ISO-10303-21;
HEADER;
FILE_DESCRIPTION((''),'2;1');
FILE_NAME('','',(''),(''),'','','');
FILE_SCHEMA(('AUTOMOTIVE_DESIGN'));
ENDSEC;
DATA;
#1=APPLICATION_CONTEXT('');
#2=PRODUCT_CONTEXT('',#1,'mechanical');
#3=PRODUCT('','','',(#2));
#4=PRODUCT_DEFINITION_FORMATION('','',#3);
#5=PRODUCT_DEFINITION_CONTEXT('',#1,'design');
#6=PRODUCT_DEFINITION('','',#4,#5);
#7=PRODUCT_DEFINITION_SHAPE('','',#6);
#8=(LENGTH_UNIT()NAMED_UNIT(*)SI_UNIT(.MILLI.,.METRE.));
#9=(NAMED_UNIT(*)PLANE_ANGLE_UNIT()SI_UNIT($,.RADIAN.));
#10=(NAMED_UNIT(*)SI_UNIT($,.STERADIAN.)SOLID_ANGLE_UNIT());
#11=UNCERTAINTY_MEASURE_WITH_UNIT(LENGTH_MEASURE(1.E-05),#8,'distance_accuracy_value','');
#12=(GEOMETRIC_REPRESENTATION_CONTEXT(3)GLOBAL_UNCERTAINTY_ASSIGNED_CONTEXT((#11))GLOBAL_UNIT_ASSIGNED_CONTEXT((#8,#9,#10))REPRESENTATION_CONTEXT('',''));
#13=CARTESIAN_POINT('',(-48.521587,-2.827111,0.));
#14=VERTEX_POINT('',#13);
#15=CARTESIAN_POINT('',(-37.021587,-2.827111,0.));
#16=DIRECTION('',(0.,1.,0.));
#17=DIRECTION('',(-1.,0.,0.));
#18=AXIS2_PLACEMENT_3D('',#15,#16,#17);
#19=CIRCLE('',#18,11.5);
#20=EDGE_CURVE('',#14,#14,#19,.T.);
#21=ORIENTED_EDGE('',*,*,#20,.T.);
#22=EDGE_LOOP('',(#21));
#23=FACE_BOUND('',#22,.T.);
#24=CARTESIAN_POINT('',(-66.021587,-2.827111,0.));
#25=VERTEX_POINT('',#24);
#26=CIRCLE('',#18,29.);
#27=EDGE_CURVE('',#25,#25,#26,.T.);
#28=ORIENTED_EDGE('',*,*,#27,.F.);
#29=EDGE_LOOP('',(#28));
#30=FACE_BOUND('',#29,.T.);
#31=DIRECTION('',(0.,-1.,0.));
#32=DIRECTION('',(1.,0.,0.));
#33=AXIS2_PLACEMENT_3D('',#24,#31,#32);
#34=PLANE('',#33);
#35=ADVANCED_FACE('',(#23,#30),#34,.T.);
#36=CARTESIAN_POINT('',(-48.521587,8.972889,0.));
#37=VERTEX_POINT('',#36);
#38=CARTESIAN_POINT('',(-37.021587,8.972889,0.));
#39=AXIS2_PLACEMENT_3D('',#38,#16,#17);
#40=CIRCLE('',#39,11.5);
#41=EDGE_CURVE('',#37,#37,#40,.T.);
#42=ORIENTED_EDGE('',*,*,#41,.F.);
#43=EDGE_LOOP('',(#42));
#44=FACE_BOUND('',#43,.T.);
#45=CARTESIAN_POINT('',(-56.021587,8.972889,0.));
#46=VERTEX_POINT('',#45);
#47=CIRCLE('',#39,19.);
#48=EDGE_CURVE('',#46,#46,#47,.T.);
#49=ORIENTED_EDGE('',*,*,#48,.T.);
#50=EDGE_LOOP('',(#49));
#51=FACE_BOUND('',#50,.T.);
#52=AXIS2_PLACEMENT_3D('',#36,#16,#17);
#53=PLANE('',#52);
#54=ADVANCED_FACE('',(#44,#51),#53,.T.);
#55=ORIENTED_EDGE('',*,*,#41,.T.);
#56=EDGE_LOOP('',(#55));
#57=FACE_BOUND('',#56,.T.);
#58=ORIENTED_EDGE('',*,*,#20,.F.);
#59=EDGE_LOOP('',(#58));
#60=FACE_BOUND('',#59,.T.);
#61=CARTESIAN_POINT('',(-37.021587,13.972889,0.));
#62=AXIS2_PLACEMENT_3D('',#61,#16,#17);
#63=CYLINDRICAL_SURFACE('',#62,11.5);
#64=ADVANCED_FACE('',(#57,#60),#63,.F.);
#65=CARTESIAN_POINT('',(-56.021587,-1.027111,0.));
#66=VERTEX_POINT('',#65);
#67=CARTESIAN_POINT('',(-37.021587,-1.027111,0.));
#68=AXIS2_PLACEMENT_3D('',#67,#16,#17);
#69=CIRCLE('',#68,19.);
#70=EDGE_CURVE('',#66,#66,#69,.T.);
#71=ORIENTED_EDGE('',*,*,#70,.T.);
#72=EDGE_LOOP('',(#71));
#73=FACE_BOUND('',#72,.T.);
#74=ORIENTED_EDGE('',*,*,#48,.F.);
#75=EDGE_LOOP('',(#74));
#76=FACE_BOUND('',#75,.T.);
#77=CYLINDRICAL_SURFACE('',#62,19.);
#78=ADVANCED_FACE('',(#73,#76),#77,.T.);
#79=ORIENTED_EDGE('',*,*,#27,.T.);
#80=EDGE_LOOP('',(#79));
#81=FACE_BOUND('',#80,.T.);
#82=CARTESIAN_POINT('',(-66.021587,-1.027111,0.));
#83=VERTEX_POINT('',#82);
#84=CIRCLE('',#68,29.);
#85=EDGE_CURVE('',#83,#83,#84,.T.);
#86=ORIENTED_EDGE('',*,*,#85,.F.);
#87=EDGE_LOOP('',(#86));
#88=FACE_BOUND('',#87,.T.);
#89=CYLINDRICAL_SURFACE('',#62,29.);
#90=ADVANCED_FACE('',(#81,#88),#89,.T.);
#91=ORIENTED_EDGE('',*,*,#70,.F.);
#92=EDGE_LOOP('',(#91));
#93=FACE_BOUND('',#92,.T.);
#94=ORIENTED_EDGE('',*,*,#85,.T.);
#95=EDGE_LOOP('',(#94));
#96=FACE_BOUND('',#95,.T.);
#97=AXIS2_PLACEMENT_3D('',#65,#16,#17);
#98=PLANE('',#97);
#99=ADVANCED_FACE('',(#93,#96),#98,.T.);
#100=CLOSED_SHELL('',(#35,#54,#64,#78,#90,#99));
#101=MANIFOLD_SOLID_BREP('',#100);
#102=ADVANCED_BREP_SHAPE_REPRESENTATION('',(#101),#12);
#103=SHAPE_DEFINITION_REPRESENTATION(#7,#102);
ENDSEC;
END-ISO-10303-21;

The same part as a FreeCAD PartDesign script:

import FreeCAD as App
import Part
import Sketcher
Q = App.Units.Quantity

doc = App.newDocument("Part")
body = doc.addObject("PartDesign::Body", "Body")

# Sketch on XY plane
sketch1 = body.newObject("Sketcher::SketchObject", "Sketch")
sketch1.AttachmentSupport = (doc.getObject("XY_Plane"), [""])
sketch1.MapMode = "FlatFace"
sketch1.addGeometry([
    Part.LineSegment(App.Vector(-48.5, -2.8, 0), App.Vector(-48.5, 9, 0)),  # 0
    Part.LineSegment(App.Vector(-48.5, 9, 0), App.Vector(-56, 9, 0)),  # 1
    Part.LineSegment(App.Vector(-56, 9, 0), App.Vector(-56, -1, 0)),  # 2
    Part.LineSegment(App.Vector(-56, -1, 0), App.Vector(-66, -1, 0)),  # 3
    Part.LineSegment(App.Vector(-66, -1, 0), App.Vector(-66, -2.8, 0)),  # 4
    Part.LineSegment(App.Vector(-66, -2.8, 0), App.Vector(-48.5, -2.8, 0)),  # 5
], False)
sketch1.addGeometry(Part.LineSegment(App.Vector(-37, 9, 0), App.Vector(-37, -2.8, 0)), True)  # axis
sketch1.addConstraint([
    Sketcher.Constraint("Coincident", 0, 2, 1, 1),
    Sketcher.Constraint("Coincident", 1, 2, 2, 1),
    Sketcher.Constraint("Coincident", 2, 2, 3, 1),
    Sketcher.Constraint("Coincident", 3, 2, 4, 1),
    Sketcher.Constraint("Coincident", 4, 2, 5, 1),
    Sketcher.Constraint("Coincident", 5, 2, 0, 1),
    Sketcher.Constraint("Vertical", 0),
    Sketcher.Constraint("Horizontal", 1),
    Sketcher.Constraint("Vertical", 2),
    Sketcher.Constraint("Horizontal", 3),
    Sketcher.Constraint("Vertical", 4),
    Sketcher.Constraint("Horizontal", 5),
    Sketcher.Constraint("Vertical", 6),
    Sketcher.Constraint("Horizontal", 1, 2, 6, 1),
    Sketcher.Constraint("Horizontal", 5, 2, 6, 2),
    Sketcher.Constraint("Equal", 3, 2),
    Sketcher.Constraint("DistanceX", 3, 2, 3, 1, Q("10 mm")),
    Sketcher.Constraint("DistanceX", 1, 2, 1, 1, Q("7.5 mm")),
    Sketcher.Constraint("DistanceY", 0, 1, 0, 2, Q("11.8 mm")),
    Sketcher.Constraint("DistanceX", 1, 2, 6, 1, Q("19 mm")),
    Sketcher.Constraint("DistanceY", -1, 1, 0, 2, Q("8.972889 mm")),
    Sketcher.Constraint("DistanceX", 0, 2, -1, 1, Q("48.521587 mm")),
])
revolution = body.newObject("PartDesign::Revolution", "Revolution")
revolution.Profile = sketch1
revolution.ReferenceAxis = (sketch1, ["Axis0"])
revolution.Angle = 360

doc.recompute()
